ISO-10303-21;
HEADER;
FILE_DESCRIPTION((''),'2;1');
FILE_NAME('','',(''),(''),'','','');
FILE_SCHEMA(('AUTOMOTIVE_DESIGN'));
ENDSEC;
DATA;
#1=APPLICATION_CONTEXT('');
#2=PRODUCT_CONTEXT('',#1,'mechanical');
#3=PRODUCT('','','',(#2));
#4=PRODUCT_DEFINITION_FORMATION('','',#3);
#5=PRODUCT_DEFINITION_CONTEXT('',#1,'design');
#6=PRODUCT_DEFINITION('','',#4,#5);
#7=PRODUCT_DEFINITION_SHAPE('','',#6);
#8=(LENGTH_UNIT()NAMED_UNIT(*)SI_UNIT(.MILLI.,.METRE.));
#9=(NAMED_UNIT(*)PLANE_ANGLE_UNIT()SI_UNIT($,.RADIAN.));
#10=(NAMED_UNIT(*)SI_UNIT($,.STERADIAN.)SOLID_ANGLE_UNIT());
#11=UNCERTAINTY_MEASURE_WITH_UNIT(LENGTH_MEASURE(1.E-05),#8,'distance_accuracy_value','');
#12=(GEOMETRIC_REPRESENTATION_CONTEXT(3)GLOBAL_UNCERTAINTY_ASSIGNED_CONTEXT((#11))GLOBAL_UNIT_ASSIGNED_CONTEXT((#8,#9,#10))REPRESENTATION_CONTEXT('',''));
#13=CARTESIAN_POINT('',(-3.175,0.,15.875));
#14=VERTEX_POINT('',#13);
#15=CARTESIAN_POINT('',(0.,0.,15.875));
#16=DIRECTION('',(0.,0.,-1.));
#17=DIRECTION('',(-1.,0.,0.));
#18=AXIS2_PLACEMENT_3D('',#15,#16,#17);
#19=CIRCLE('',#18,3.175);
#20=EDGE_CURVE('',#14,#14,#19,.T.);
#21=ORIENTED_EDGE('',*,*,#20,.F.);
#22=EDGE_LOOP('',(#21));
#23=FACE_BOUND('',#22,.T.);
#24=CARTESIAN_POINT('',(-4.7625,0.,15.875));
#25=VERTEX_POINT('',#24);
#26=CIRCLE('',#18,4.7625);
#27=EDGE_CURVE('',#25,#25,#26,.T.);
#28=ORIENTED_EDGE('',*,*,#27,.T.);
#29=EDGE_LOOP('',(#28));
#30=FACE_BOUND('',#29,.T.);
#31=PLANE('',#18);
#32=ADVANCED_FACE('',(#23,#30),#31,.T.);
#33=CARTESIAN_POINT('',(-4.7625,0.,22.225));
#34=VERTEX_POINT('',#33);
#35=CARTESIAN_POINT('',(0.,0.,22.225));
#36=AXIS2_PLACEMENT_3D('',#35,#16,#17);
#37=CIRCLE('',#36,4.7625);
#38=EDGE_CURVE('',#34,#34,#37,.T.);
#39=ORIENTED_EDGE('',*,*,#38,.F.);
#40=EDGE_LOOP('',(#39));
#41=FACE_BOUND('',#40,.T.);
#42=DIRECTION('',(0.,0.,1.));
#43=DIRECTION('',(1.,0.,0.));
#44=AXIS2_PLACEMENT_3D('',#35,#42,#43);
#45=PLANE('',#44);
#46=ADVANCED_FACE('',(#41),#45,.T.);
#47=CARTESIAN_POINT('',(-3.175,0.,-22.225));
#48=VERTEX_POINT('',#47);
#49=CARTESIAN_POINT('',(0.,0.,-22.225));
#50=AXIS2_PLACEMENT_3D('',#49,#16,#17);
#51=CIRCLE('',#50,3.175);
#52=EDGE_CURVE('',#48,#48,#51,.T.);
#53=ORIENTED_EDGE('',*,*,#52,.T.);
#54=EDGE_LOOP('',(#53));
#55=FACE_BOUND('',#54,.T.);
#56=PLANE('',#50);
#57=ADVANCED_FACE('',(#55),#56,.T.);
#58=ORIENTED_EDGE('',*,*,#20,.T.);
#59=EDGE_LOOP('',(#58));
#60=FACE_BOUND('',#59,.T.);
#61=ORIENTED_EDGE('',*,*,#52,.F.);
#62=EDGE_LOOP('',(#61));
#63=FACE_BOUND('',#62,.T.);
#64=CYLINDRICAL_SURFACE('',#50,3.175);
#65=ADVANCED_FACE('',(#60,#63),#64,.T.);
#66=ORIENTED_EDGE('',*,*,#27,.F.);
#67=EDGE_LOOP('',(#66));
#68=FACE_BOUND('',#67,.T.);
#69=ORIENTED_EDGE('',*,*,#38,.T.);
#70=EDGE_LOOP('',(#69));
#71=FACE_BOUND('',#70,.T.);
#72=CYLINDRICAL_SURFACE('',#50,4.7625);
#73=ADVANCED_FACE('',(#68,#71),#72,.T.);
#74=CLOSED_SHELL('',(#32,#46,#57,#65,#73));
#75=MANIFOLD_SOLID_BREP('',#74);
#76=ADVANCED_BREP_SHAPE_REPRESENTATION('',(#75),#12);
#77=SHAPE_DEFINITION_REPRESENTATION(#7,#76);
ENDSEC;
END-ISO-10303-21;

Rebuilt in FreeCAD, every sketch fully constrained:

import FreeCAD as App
import Part
import Sketcher
Q = App.Units.Quantity

doc = App.newDocument("Part")
body = doc.addObject("PartDesign::Body", "Body")

sketch1 = body.newObject("Sketcher::SketchObject", "Sketch")
sketch1.AttachmentSupport = (doc.getObject("YZ_Plane"), [""])
sketch1.MapMode = "FlatFace"
sketch1.addGeometry([
    Part.LineSegment(App.Vector(0, 22.2, 0), App.Vector(0, -22.2, 0)),
    Part.LineSegment(App.Vector(0, -22.2, 0), App.Vector(3.2, -22.2, 0)),
    Part.LineSegment(App.Vector(3.2, -22.2, 0), App.Vector(3.2, 15.9, 0)),
    Part.LineSegment(App.Vector(3.2, 15.9, 0), App.Vector(4.8, 15.9, 0)),
    Part.LineSegment(App.Vector(4.8, 15.9, 0), App.Vector(4.8, 22.2, 0)),
    Part.LineSegment(App.Vector(4.8, 22.2, 0), App.Vector(0, 22.2, 0)),
], False)
sketch1.addConstraint([
    Sketcher.Constraint("Coincident", 0, 2, 1, 1),
    Sketcher.Constraint("Coincident", 1, 2, 2, 1),
    Sketcher.Constraint("Coincident", 2, 2, 3, 1),
    Sketcher.Constraint("Coincident", 3, 2, 4, 1),
    Sketcher.Constraint("Coincident", 4, 2, 5, 1),
    Sketcher.Constraint("Coincident", 5, 2, 0, 1),
    Sketcher.Constraint("Vertical", 0),
    Sketcher.Constraint("Horizontal", 1),
    Sketcher.Constraint("Vertical", 2),
    Sketcher.Constraint("Horizontal", 3),
    Sketcher.Constraint("Vertical", 4),
    Sketcher.Constraint("Horizontal", 5),
    Sketcher.Constraint("Symmetric", 0, 2, 5, 2, -1, 1),
    Sketcher.Constraint("DistanceY", 2, 1, 2, 2, Q("1.5 in")),
    Sketcher.Constraint("DistanceY", 0, 2, 0, 1, Q("1.75 in")),
    Sketcher.Constraint("DistanceX", 1, 1, 1, 2, Q("0.125 in")),
    Sketcher.Constraint("DistanceX", 3, 1, 3, 2, Q("0.0625 in")),
])
revolution = body.newObject("PartDesign::Revolution", "Revolution")
revolution.Profile = sketch1
revolution.ReferenceAxis = (sketch1, ["V_Axis"])
revolution.Angle = 360

doc.recompute()
